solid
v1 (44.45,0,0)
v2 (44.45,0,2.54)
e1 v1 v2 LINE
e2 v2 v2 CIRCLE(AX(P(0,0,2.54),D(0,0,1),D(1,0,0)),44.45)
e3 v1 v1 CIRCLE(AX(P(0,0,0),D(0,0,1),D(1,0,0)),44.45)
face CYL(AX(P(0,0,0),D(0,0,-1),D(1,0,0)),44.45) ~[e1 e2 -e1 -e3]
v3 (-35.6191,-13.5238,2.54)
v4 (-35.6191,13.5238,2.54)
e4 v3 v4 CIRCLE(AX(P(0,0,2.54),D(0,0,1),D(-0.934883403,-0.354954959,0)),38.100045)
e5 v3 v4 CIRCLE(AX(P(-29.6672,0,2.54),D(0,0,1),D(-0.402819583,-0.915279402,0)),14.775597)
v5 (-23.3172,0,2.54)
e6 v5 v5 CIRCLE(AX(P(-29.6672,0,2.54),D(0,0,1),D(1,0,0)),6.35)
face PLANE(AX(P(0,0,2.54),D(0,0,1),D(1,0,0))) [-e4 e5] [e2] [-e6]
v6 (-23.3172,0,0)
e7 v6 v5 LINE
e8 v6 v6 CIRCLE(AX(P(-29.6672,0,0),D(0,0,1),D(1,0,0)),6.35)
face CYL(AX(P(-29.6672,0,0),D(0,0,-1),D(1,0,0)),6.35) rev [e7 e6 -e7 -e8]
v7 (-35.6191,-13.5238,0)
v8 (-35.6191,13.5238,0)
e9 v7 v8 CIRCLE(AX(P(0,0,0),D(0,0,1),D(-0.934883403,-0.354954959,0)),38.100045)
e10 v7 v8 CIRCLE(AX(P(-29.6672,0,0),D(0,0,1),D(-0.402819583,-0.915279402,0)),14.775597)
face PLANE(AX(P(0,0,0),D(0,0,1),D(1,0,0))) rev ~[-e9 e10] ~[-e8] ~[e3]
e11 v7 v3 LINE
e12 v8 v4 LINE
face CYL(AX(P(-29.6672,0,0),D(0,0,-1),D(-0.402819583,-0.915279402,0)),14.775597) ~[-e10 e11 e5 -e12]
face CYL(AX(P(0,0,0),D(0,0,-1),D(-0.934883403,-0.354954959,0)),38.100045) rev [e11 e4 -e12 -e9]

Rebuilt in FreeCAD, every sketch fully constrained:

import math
import FreeCAD as App
import Part
import Sketcher
Q = App.Units.Quantity

doc = App.newDocument("Part")
body = doc.addObject("PartDesign::Body", "Body")

# Sketch on XY plane
sketch1 = body.newObject("Sketcher::SketchObject", "Sketch")
sketch1.AttachmentSupport = (doc.getObject("XY_Plane"), [""])
sketch1.MapMode = "FlatFace"
sketch1.addGeometry(Part.Circle(App.Vector(0, 0, 0), App.Vector(0, 0, 1), 44), False)
sketch1.addGeometry(Part.Circle(App.Vector(-30, 0, 0), App.Vector(0, 0, 1), 6), False)
sketch1.addGeometry(Part.ArcOfCircle(Part.Circle(App.Vector(0, 0, 0), App.Vector(0, 0, 1), 38), math.radians(-159), math.radians(159)), False)
sketch1.addGeometry(Part.ArcOfCircle(Part.Circle(App.Vector(-30, 0, 0), App.Vector(0, 0, 1), 15), math.radians(-114), math.radians(114)), False)
sketch1.addConstraint(Sketcher.Constraint("Coincident", 2, 1, 3, 1))
sketch1.addConstraint(Sketcher.Constraint("Coincident", 3, 2, 2, 2))
sketch1.addConstraint(Sketcher.Constraint("Coincident", 0, 3, -1, 1))
sketch1.addConstraint(Sketcher.Constraint("Coincident", 2, 3, -1, 1))
sketch1.addConstraint(Sketcher.Constraint("Coincident", 3, 3, 1, 3))
sketch1.addConstraint(Sketcher.Constraint("PointOnObject", 1, 3, -1))
sketch1.addConstraint(Sketcher.Constraint("Diameter", 0, Q("3.5 in")))
sketch1.addConstraint(Sketcher.Constraint("Diameter", 1, Q("0.5 in")))
sketch1.addConstraint(Sketcher.Constraint("Radius", 2, Q("1.5 in")))
sketch1.addConstraint(Sketcher.Constraint("Radius", 3, 14.7756))
sketch1.addConstraint(Sketcher.Constraint("DistanceX", 1, 3, -1, 1, Q("1.168 in")))
pad1 = body.newObject("PartDesign::Pad", "Pad")
pad1.Profile = sketch1
pad1.Length = Q("0.1 in")

doc.recompute()
